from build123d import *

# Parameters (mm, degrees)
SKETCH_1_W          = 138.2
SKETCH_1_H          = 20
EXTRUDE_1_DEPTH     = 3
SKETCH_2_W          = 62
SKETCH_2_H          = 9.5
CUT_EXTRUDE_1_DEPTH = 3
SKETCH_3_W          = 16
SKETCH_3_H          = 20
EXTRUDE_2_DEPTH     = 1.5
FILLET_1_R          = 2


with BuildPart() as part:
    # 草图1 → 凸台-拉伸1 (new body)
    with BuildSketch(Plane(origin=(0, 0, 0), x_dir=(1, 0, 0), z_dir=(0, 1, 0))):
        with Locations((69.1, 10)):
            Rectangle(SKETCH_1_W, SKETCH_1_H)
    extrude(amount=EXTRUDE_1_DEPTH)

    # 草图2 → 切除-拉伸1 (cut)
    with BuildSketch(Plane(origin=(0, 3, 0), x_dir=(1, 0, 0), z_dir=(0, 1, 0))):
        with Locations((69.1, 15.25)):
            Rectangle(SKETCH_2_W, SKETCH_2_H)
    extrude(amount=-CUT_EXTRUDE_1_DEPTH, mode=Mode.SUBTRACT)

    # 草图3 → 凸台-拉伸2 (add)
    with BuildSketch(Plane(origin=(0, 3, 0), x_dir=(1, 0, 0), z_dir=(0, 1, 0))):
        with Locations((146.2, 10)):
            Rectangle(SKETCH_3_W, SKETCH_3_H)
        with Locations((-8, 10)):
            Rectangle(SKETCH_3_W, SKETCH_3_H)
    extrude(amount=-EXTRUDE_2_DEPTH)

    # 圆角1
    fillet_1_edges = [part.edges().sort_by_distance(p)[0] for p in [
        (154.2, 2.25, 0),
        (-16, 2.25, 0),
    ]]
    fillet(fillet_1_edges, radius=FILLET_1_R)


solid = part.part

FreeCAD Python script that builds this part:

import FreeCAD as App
import Part
import Sketcher
from FreeCAD import Vector


def edges_at(feature, points):
    """Names of the edges that pass closest to the given points."""
    edges = feature.Shape.Edges
    near = lambda p: min(range(len(edges)), key=lambda i: edges[i].distToShape(Part.Vertex(*p))[0])
    return sorted({f"Edge{near(p) + 1}" for p in points})

doc = App.newDocument("Part")
params = doc.addObject("Spreadsheet::Sheet", "Params")
for row, (alias, value) in enumerate([
    ("sketch1_height", "20 mm"),
    ("sketch1_width", "138.2 mm"),
    ("pad1_length", "3 mm"),
    ("sketch2_width", "62 mm"),
    ("sketch2_height", "9.5 mm"),
    ("pocket1_length", "3 mm"),
    ("sketch3_width", "16 mm"),
    ("sketch3_height", "20 mm"),
    ("pad2_length", "1.5 mm"),
    ("fillet_radius", "2 mm"),
], start=1):
    params.set(f"A{row}", alias)
    params.set(f"B{row}", "=" + value)
    params.setAlias(f"B{row}", alias)

body = doc.addObject("PartDesign::Body", "Body")

# Sketch on XZ plane
sketch1 = body.newObject("Sketcher::SketchObject", "Sketch")
sketch1.AttachmentSupport = (doc.getObject("XZ_Plane"), [""])
sketch1.MapMode = "FlatFace"
sketch1.addGeometry([
    Part.LineSegment(Vector(0, -20, 0), Vector(0, 0, 0)),
    Part.LineSegment(Vector(0, 0, 0), Vector(138, 0, 0)),
    Part.LineSegment(Vector(138, 0, 0), Vector(138, -20, 0)),
    Part.LineSegment(Vector(138, -20, 0), Vector(0, -20, 0)),
], False)
sketch1.addConstraint([
    Sketcher.Constraint("Coincident", 0, 2, 1, 1),
    Sketcher.Constraint("Coincident", 1, 2, 2, 1),
    Sketcher.Constraint("Coincident", 2, 2, 3, 1),
    Sketcher.Constraint("Coincident", 3, 2, 0, 1),
    Sketcher.Constraint("Vertical", 0),
    Sketcher.Constraint("Horizontal", 1),
    Sketcher.Constraint("Vertical", 2),
    Sketcher.Constraint("Horizontal", 3),
    Sketcher.Constraint("Coincident", 0, 2, -1, 1),
    Sketcher.Constraint("DistanceY", 0, 1, 0, 2, 20.0),
    Sketcher.Constraint("DistanceX", 1, 1, 1, 2, 138.2),
])
sketch1.setExpression("Constraints[9]", "Params.sketch1_height")
sketch1.setExpression("Constraints[10]", "Params.sketch1_width")
pad1 = body.newObject("PartDesign::Pad", "Pad")
pad1.Profile = sketch1
pad1.setExpression("Length", "Params.pad1_length")
pad1.Reversed = True

# Sketch on XZ plane
sketch2 = body.newObject("Sketcher::SketchObject", "Sketch001")
sketch2.AttachmentSupport = (doc.getObject("XZ_Plane"), [""])
sketch2.MapMode = "FlatFace"
sketch2.AttachmentOffset = App.Placement(Vector(0, 0, -3), App.Rotation())
sketch2.addGeometry([
    Part.LineSegment(Vector(38, -20, 0), Vector(38, -10, 0)),
    Part.LineSegment(Vector(38, -10, 0), Vector(100, -10, 0)),
    Part.LineSegment(Vector(100, -10, 0), Vector(100, -20, 0)),
    Part.LineSegment(Vector(100, -20, 0), Vector(38, -20, 0)),
], False)
sketch2.addConstraint([
    Sketcher.Constraint("Coincident", 0, 2, 1, 1),
    Sketcher.Constraint("Coincident", 1, 2, 2, 1),
    Sketcher.Constraint("Coincident", 2, 2, 3, 1),
    Sketcher.Constraint("Coincident", 3, 2, 0, 1),
    Sketcher.Constraint("Vertical", 0),
    Sketcher.Constraint("Horizontal", 1),
    Sketcher.Constraint("Vertical", 2),
    Sketcher.Constraint("Horizontal", 3),
    Sketcher.Constraint("DistanceX", 1, 1, 1, 2, 62.0),
    Sketcher.Constraint("DistanceY", 0, 1, 0, 2, 9.5),
    Sketcher.Constraint("DistanceY", 2, 2, -1, 1, 20.0),
    Sketcher.Constraint("DistanceX", -1, 1, 0, 2, 38.1),
])
sketch2.setExpression("Constraints[8]", "Params.sketch2_width")
sketch2.setExpression("Constraints[9]", "Params.sketch2_height")
pocket1 = body.newObject("PartDesign::Pocket", "Pocket")
pocket1.Profile = sketch2
pocket1.setExpression("Length", "Params.pocket1_length")
pocket1.Reversed = True

# Sketch on XZ plane
sketch3 = body.newObject("Sketcher::SketchObject", "Sketch002")
sketch3.AttachmentSupport = (doc.getObject("XZ_Plane"), [""])
sketch3.MapMode = "FlatFace"
sketch3.AttachmentOffset = App.Placement(Vector(0, 0, -3), App.Rotation())
sketch3.addGeometry([
    Part.LineSegment(Vector(138, -20, 0), Vector(138, 0, 0)),  # 0
    Part.LineSegment(Vector(138, 0, 0), Vector(154, 0, 0)),  # 1
    Part.LineSegment(Vector(154, 0, 0), Vector(154, -20, 0)),  # 2
    Part.LineSegment(Vector(154, -20, 0), Vector(138, -20, 0)),  # 3
    Part.LineSegment(Vector(-16, -20, 0), Vector(-16, 0, 0)),  # 4
    Part.LineSegment(Vector(-16, 0, 0), Vector(0, 0, 0)),  # 5
    Part.LineSegment(Vector(0, 0, 0), Vector(0, -20, 0)),  # 6
    Part.LineSegment(Vector(0, -20, 0), Vector(-16, -20, 0)),  # 7
], False)
sketch3.addConstraint([
    Sketcher.Constraint("Coincident", 0, 2, 1, 1),
    Sketcher.Constraint("Coincident", 1, 2, 2, 1),
    Sketcher.Constraint("Coincident", 2, 2, 3, 1),
    Sketcher.Constraint("Coincident", 3, 2, 0, 1),
    Sketcher.Constraint("Coincident", 4, 2, 5, 1),
    Sketcher.Constraint("Coincident", 5, 2, 6, 1),
    Sketcher.Constraint("Coincident", 6, 2, 7, 1),
    Sketcher.Constraint("Coincident", 7, 2, 4, 1),
    Sketcher.Constraint("Vertical", 0),
    Sketcher.Constraint("Horizontal", 1),
    Sketcher.Constraint("Vertical", 2),
    Sketcher.Constraint("Horizontal", 3),
    Sketcher.Constraint("Vertical", 4),
    Sketcher.Constraint("Horizontal", 5),
    Sketcher.Constraint("Vertical", 6),
    Sketcher.Constraint("Horizontal", 7),
    Sketcher.Constraint("Coincident", 5, 2, -1, 1),
    Sketcher.Constraint("PointOnObject", 0, 2, -1),
    Sketcher.Constraint("Horizontal", 3, 2, 6, 2),
    Sketcher.Constraint("Equal", 3, 5),
    Sketcher.Constraint("DistanceX", 1, 1, 1, 2, 16.0),
    Sketcher.Constraint("DistanceY", 0, 1, 0, 2, 20.0),
    Sketcher.Constraint("DistanceX", -1, 1, 0, 2, 138.2),
])
sketch3.setExpression("Constraints[20]", "Params.sketch3_width")
sketch3.setExpression("Constraints[21]", "Params.sketch3_height")
pad2 = body.newObject("PartDesign::Pad", "Pad001")
pad2.Profile = sketch3
pad2.setExpression("Length", "Params.pad2_length")
doc.recompute()

fillet = body.newObject("PartDesign::Fillet", "Fillet")
fillet.Base = (pad2, edges_at(pad2, [(154.2, 2.25, 0), (-16, 2.25, 0)]))
fillet.setExpression("Radius", "Params.fillet_radius")

doc.recompute()
